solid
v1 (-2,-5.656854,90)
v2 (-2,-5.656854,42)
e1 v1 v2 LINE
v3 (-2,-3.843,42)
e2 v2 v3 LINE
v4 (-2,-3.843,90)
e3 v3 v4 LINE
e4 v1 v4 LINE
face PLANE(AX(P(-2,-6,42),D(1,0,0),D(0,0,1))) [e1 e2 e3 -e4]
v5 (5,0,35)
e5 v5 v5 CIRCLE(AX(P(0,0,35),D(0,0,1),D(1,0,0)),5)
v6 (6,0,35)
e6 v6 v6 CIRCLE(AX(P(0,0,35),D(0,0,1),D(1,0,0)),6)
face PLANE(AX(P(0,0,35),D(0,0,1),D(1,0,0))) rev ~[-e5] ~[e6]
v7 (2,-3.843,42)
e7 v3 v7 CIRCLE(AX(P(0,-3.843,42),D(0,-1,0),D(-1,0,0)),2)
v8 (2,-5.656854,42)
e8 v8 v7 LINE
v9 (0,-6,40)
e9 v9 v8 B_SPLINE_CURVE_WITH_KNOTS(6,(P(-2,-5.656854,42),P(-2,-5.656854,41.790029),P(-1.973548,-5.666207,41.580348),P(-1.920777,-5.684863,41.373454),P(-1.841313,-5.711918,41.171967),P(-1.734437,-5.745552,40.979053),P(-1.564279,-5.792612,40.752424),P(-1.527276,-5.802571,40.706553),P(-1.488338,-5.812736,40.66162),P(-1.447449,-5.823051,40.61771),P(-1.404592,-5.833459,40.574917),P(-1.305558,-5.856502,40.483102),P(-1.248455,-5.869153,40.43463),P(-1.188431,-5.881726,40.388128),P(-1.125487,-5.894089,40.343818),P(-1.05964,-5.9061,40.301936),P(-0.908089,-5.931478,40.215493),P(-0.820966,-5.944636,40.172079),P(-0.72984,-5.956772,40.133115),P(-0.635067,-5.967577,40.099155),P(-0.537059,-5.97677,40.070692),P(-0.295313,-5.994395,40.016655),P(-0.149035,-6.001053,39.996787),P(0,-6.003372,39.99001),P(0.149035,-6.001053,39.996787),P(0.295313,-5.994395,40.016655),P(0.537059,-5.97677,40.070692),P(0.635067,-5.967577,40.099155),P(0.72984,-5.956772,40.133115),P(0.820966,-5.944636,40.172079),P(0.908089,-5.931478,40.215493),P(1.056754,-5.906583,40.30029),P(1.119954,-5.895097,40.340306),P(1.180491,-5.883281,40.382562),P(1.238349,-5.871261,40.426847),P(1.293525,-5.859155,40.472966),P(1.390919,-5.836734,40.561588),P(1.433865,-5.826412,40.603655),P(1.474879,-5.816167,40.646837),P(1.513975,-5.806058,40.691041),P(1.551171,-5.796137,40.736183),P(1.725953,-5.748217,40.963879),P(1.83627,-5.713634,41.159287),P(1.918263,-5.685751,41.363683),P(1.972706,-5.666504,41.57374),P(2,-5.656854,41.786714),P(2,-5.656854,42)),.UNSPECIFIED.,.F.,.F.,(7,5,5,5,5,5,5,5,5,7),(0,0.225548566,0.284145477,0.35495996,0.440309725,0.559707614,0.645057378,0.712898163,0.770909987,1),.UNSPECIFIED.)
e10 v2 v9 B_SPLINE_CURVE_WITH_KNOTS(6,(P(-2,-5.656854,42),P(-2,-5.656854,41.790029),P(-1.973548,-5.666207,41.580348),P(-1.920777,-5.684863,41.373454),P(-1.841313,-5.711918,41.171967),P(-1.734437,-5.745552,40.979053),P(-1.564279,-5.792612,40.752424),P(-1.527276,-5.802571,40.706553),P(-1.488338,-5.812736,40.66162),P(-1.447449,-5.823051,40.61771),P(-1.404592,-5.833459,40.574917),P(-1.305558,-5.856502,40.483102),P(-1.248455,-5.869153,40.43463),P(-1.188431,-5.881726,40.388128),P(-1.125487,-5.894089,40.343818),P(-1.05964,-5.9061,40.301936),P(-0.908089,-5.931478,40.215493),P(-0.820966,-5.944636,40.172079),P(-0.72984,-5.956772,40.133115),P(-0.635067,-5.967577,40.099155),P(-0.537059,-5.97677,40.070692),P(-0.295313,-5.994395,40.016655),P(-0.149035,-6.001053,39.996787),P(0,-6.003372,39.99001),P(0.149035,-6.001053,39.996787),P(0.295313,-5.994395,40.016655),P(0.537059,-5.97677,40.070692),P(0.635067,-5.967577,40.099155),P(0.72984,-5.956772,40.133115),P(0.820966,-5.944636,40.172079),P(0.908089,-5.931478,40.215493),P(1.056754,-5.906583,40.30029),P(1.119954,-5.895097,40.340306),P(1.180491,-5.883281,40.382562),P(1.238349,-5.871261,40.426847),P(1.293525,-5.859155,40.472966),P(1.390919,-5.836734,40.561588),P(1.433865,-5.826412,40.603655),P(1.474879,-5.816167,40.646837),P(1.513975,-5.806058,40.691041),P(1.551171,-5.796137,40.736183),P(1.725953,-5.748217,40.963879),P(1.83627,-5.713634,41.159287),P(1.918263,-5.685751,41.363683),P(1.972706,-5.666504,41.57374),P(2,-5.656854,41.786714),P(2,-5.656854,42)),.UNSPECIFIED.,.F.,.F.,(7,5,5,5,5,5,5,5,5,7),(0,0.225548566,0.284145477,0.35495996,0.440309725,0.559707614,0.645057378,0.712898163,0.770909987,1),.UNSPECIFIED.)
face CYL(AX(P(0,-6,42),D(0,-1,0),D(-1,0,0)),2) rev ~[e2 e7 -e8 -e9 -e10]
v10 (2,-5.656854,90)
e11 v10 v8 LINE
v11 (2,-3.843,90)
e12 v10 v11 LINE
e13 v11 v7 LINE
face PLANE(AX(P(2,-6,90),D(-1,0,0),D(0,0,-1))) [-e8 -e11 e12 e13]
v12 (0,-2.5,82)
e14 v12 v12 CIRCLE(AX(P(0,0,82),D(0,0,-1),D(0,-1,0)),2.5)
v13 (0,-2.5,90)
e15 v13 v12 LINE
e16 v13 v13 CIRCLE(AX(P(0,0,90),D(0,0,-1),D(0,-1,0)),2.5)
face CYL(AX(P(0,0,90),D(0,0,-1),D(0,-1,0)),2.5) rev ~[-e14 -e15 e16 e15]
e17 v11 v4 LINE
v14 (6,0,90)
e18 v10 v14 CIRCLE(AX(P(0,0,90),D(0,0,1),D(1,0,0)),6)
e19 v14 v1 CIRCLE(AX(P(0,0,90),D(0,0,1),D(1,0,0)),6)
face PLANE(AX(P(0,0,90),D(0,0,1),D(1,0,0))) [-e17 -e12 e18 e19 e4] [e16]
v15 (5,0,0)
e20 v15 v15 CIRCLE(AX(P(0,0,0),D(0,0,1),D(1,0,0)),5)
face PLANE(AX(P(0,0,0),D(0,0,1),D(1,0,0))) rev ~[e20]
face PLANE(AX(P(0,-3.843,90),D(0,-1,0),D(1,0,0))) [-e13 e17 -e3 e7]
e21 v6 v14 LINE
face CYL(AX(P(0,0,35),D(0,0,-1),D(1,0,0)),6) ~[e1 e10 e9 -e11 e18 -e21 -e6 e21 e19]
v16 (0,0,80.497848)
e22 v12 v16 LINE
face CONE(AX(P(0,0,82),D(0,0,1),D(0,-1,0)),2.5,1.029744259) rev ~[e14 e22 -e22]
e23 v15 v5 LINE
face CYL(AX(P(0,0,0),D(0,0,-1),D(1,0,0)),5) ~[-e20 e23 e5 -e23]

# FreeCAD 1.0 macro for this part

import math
import FreeCAD as App
import Part
import Sketcher
from FreeCAD import Vector
Q = App.Units.Quantity

doc = App.newDocument("Part")
body = doc.addObject("PartDesign::Body", "Body")

# Sketch on XY plane
sketch1 = body.newObject("Sketcher::SketchObject", "Sketch")
sketch1.AttachmentSupport = (doc.getObject("XY_Plane"), [""])
sketch1.MapMode = "FlatFace"
sketch1.addGeometry(Part.Circle(Vector(0, 0, 0), Vector(0, 0, 1), 5), False)
sketch1.addConstraint(Sketcher.Constraint("Coincident", 0, 3, -1, 1))
sketch1.addConstraint(Sketcher.Constraint("Diameter", 0, Q("10 mm")))
pad1 = body.newObject("PartDesign::Pad", "Pad")
pad1.Profile = sketch1
pad1.Length = 35

# Sketch on XY plane
sketch2 = body.newObject("Sketcher::SketchObject", "Sketch001")
sketch2.AttachmentSupport = (doc.getObject("XY_Plane"), [""])
sketch2.MapMode = "FlatFace"
sketch2.AttachmentOffset = App.Placement(Vector(0, 0, 35), App.Rotation())
sketch2.addGeometry(Part.Circle(Vector(0, 0, 0), Vector(0, 0, 1), 6), False)
sketch2.addConstraint(Sketcher.Constraint("Coincident", 0, 3, -1, 1))
sketch2.addConstraint(Sketcher.Constraint("Diameter", 0, Q("12 mm")))
pad2 = body.newObject("PartDesign::Pad", "Pad001")
pad2.Profile = sketch2
pad2.Length = 55

# Sketch on XZ plane
sketch3 = body.newObject("Sketcher::SketchObject", "Sketch002")
sketch3.AttachmentSupport = (doc.getObject("XZ_Plane"), [""])
sketch3.MapMode = "FlatFace"
sketch3.AttachmentOffset = App.Placement(Vector(0, 0, 6), App.Rotation())
sketch3.addGeometry(Part.LineSegment(Vector(2, 42, 0), Vector(2, 90, 0)), False)
sketch3.addGeometry(Part.LineSegment(Vector(2, 90, 0), Vector(-2, 90, 0)), False)
sketch3.addGeometry(Part.LineSegment(Vector(-2, 90, 0), Vector(-2, 42, 0)), False)
sketch3.addGeometry(Part.ArcOfCircle(Part.Circle(Vector(0, 42, 0), Vector(0, 0, 1), 2), math.radians(180), math.radians(360)), False)
sketch3.addConstraint(Sketcher.Constraint("Coincident", 0, 2, 1, 1))
sketch3.addConstraint(Sketcher.Constraint("Coincident", 1, 2, 2, 1))
sketch3.addConstraint(Sketcher.Constraint("Tangent", 2, 2, 3, 1))
sketch3.addConstraint(Sketcher.Constraint("Tangent", 3, 2, 0, 1))
sketch3.addConstraint(Sketcher.Constraint("Vertical", 0))
sketch3.addConstraint(Sketcher.Constraint("Horizontal", 1))
sketch3.addConstraint(Sketcher.Constraint("Vertical", 2))
sketch3.addConstraint(Sketcher.Constraint("PointOnObject", 3, 3, -2))
sketch3.addConstraint(Sketcher.Constraint("Radius", 3, Q("2 mm")))
sketch3.addConstraint(Sketcher.Constraint("DistanceY", 0, 1, 0, 2, Q("48 mm")))
sketch3.addConstraint(Sketcher.Constraint("DistanceY", -1, 1, 3, 3, Q("42 mm")))
pocket1 = body.newObject("PartDesign::Pocket", "Pocket")
pocket1.Profile = sketch3
pocket1.Length = 2.157

# Sketch on XY plane
sketch4 = body.newObject("Sketcher::SketchObject", "Sketch003")
sketch4.AttachmentSupport = (doc.getObject("XY_Plane"), [""])
sketch4.MapMode = "FlatFace"
sketch4.AttachmentOffset = App.Placement(Vector(0, 0, 90), App.Rotation())
sketch4.addGeometry(Part.Circle(Vector(0, 0, 0), Vector(0, 0, 1), 2.5), False)
sketch4.addConstraint(Sketcher.Constraint("Coincident", 0, 3, -1, 1))
sketch4.addConstraint(Sketcher.Constraint("Diameter", 0, Q("5 mm")))
doc.recompute()
hole = body.newObject("PartDesign::Hole", "Hole")
hole.Profile = sketch4
hole.ThreadType = "None"
hole.Diameter = 5
hole.DepthType = "Dimension"
hole.Depth = 8
hole.DrillPoint = "Angled"
hole.DrillPointAngle = 118

doc.recompute()
